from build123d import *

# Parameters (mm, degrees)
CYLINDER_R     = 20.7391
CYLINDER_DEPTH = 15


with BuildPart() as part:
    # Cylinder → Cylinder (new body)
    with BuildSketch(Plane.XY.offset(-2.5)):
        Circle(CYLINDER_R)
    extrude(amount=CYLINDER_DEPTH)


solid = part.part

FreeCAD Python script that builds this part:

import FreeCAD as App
import Part
import Sketcher
from FreeCAD import Vector
Q = App.Units.Quantity

doc = App.newDocument("Part")
body = doc.addObject("PartDesign::Body", "Body")

# Sketch on XY plane
sketch1 = body.newObject("Sketcher::SketchObject", "Sketch")
sketch1.AttachmentSupport = (doc.getObject("XY_Plane"), [""])
sketch1.MapMode = "FlatFace"
sketch1.AttachmentOffset = App.Placement(Vector(0, 0, -2.5), App.Rotation())
sketch1.addGeometry(Part.Circle(Vector(0, 0, 0), Vector(0, 0, 1), 21), False)
sketch1.addConstraint([
    Sketcher.Constraint("Coincident", 0, 3, -1, 1),
    Sketcher.Constraint("Diameter", 0, Q("41.4782 mm")),
])
pad1 = body.newObject("PartDesign::Pad", "Pad")
pad1.Profile = sketch1
pad1.Length = 15

doc.recompute()
